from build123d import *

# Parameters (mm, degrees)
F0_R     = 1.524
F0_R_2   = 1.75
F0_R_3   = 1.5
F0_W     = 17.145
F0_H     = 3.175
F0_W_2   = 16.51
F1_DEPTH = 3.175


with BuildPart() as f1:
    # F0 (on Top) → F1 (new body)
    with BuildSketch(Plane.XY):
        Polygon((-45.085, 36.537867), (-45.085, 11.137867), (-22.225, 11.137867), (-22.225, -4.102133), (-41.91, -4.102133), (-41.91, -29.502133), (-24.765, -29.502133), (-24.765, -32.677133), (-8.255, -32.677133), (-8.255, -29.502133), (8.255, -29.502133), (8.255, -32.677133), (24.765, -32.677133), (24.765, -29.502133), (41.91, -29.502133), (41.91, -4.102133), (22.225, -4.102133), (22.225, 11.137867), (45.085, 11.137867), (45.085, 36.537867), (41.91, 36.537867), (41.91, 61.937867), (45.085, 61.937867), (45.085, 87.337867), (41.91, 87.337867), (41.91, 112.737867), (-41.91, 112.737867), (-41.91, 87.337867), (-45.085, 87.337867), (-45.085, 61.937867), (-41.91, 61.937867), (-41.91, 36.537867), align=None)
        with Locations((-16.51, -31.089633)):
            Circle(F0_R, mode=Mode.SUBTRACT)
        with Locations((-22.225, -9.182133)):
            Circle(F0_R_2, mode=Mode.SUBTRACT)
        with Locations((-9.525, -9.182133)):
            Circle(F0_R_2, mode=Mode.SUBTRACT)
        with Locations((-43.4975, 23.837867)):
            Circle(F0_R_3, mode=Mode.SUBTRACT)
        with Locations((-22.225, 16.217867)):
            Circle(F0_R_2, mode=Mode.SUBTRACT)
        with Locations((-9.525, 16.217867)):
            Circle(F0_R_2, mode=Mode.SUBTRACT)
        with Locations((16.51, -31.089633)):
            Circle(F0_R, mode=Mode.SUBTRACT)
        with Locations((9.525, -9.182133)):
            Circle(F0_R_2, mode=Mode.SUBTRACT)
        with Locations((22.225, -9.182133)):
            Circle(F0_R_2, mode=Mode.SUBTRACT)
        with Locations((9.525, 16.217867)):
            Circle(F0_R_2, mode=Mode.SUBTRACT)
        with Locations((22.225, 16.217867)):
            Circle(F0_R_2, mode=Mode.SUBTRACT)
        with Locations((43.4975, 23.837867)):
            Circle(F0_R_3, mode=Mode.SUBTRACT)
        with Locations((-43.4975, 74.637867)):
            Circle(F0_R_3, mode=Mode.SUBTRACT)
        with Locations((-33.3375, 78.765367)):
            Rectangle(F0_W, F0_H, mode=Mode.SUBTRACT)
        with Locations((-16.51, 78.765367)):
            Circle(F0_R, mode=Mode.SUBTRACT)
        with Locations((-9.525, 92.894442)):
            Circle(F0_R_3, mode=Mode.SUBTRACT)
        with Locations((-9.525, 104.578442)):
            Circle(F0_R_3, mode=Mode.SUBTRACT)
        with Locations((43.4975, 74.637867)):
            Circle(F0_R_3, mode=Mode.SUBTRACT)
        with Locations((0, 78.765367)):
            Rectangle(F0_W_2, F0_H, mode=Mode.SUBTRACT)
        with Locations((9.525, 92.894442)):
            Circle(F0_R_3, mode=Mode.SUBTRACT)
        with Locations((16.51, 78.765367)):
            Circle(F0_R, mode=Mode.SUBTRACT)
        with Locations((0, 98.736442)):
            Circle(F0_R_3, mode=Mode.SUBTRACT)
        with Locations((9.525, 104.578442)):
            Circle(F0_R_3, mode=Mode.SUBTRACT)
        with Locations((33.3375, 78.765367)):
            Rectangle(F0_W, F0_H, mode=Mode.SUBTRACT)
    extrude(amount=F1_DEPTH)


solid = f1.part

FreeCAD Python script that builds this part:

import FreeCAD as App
import Part
import Sketcher
from FreeCAD import Vector
Q = App.Units.Quantity


def add_polygon(sketch, points):
    """Adds a closed chain of lines whose ends are joined by coincident constraints."""
    first, n = sketch.GeometryCount, len(points)
    for a, b in zip(points, points[1:] + points[:1]):
        sketch.addGeometry(Part.LineSegment(App.Vector(*a, 0), App.Vector(*b, 0)), False)
    for i in range(n):
        sketch.addConstraint(Sketcher.Constraint("Coincident", first + i, 2, first + (i + 1) % n, 1))

doc = App.newDocument("Part")
body = doc.addObject("PartDesign::Body", "Body")

# Sketch on XY plane
sketch1 = doc.addObject("Sketcher::SketchObject", "Sketch")
body.addObject(sketch1)
sketch1.AttachmentSupport = (doc.XY_Plane, [""])
sketch1.MapMode = "FlatFace"
add_polygon(sketch1, [(-45.085, 36.537867), (-45.085, 11.137867), (-22.225, 11.137867), (-22.225, -4.102133), (-41.91, -4.102133), (-41.91, -29.502133), (-24.765, -29.502133), (-24.765, -32.677133), (-8.255, -32.677133), (-8.255, -29.502133), (8.255, -29.502133), (8.255, -32.677133), (24.765, -32.677133), (24.765, -29.502133), (41.91, -29.502133), (41.91, -4.102133), (22.225, -4.102133), (22.225, 11.137867), (45.085, 11.137867), (45.085, 36.537867), (41.91, 36.537867), (41.91, 61.937867), (45.085, 61.937867), (45.085, 87.337867), (41.91, 87.337867), (41.91, 112.737867), (-41.91, 112.737867), (-41.91, 87.337867), (-45.085, 87.337867), (-45.085, 61.937867), (-41.91, 61.937867), (-41.91, 36.537867)])  # lines 0-31
sketch1.addGeometry(Part.Circle(Vector(-16.51, -31.089633, 0), Vector(0, 0, 1), 1.524), False)  # 32
sketch1.addGeometry(Part.Circle(Vector(-22.225, -9.182133, 0), Vector(0, 0, 1), 1.75), False)  # 33
sketch1.addGeometry(Part.Circle(Vector(-9.525, -9.182133, 0), Vector(0, 0, 1), 1.75), False)  # 34
sketch1.addGeometry(Part.Circle(Vector(-43.4975, 23.837867, 0), Vector(0, 0, 1), 1.5), False)  # 35
sketch1.addGeometry(Part.Circle(Vector(-22.225, 16.217867, 0), Vector(0, 0, 1), 1.75), False)  # 36
sketch1.addGeometry(Part.Circle(Vector(-9.525, 16.217867, 0), Vector(0, 0, 1), 1.75), False)  # 37
sketch1.addGeometry(Part.Circle(Vector(16.51, -31.089633, 0), Vector(0, 0, 1), 1.524), False)  # 38
sketch1.addGeometry(Part.Circle(Vector(9.525, -9.182133, 0), Vector(0, 0, 1), 1.75), False)  # 39
sketch1.addGeometry(Part.Circle(Vector(22.225, -9.182133, 0), Vector(0, 0, 1), 1.75), False)  # 40
sketch1.addGeometry(Part.Circle(Vector(9.525, 16.217867, 0), Vector(0, 0, 1), 1.75), False)  # 41
sketch1.addGeometry(Part.Circle(Vector(22.225, 16.217867, 0), Vector(0, 0, 1), 1.75), False)  # 42
sketch1.addGeometry(Part.Circle(Vector(43.4975, 23.837867, 0), Vector(0, 0, 1), 1.5), False)  # 43
sketch1.addGeometry(Part.Circle(Vector(-43.4975, 74.637867, 0), Vector(0, 0, 1), 1.5), False)  # 44
add_polygon(sketch1, [(-24.765, 77.177867), (-41.91, 77.177867), (-41.91, 80.352867), (-24.765, 80.352867)])  # lines 45-48
sketch1.addGeometry(Part.Circle(Vector(-16.51, 78.765367, 0), Vector(0, 0, 1), 1.524), False)  # 49
sketch1.addGeometry(Part.Circle(Vector(-9.525, 92.894442, 0), Vector(0, 0, 1), 1.5), False)  # 50
sketch1.addGeometry(Part.Circle(Vector(-9.525, 104.578442, 0), Vector(0, 0, 1), 1.5), False)  # 51
add_polygon(sketch1, [(8.255, 77.177867), (-8.255, 77.177867), (-8.255, 80.352867), (8.255, 80.352867)])  # lines 52-55
sketch1.addGeometry(Part.Circle(Vector(16.51, 78.765367, 0), Vector(0, 0, 1), 1.524), False)  # 56
sketch1.addGeometry(Part.Circle(Vector(9.525, 92.894442, 0), Vector(0, 0, 1), 1.5), False)  # 57
sketch1.addGeometry(Part.Circle(Vector(0, 98.736442, 0), Vector(0, 0, 1), 1.5), False)  # 58
sketch1.addGeometry(Part.Circle(Vector(9.525, 104.578442, 0), Vector(0, 0, 1), 1.5), False)  # 59
add_polygon(sketch1, [(41.91, 77.177867), (24.765, 77.177867), (24.765, 80.352867), (41.91, 80.352867)])  # lines 60-63
sketch1.addGeometry(Part.Circle(Vector(43.4975, 74.637867, 0), Vector(0, 0, 1), 1.5), False)  # 64
sketch1.addConstraint([
    Sketcher.Constraint("Vertical", 0),
    Sketcher.Constraint("Horizontal", 1),
    Sketcher.Constraint("Vertical", 2),
    Sketcher.Constraint("Horizontal", 3),
    Sketcher.Constraint("Vertical", 4),
    Sketcher.Constraint("Horizontal", 5),
    Sketcher.Constraint("Vertical", 6),
    Sketcher.Constraint("Horizontal", 7),
    Sketcher.Constraint("Vertical", 8),
    Sketcher.Constraint("Horizontal", 9),
    Sketcher.Constraint("Vertical", 10),
    Sketcher.Constraint("Horizontal", 11),
    Sketcher.Constraint("Vertical", 12),
    Sketcher.Constraint("Horizontal", 13),
    Sketcher.Constraint("Vertical", 14),
    Sketcher.Constraint("Horizontal", 15),
    Sketcher.Constraint("Vertical", 16),
    Sketcher.Constraint("Horizontal", 17),
    Sketcher.Constraint("Vertical", 18),
    Sketcher.Constraint("Horizontal", 19),
    Sketcher.Constraint("Vertical", 20),
    Sketcher.Constraint("Horizontal", 21),
    Sketcher.Constraint("Vertical", 22),
    Sketcher.Constraint("Horizontal", 23),
    Sketcher.Constraint("Vertical", 24),
    Sketcher.Constraint("Horizontal", 25),
    Sketcher.Constraint("Vertical", 26),
    Sketcher.Constraint("Horizontal", 27),
    Sketcher.Constraint("Vertical", 28),
    Sketcher.Constraint("Horizontal", 29),
    Sketcher.Constraint("Vertical", 30),
    Sketcher.Constraint("Horizontal", 31),
    Sketcher.Constraint("Horizontal", 45),
    Sketcher.Constraint("Vertical", 46),
    Sketcher.Constraint("Horizontal", 47),
    Sketcher.Constraint("Vertical", 48),
    Sketcher.Constraint("Horizontal", 52),
    Sketcher.Constraint("Vertical", 53),
    Sketcher.Constraint("Horizontal", 54),
    Sketcher.Constraint("Vertical", 55),
    Sketcher.Constraint("Horizontal", 60),
    Sketcher.Constraint("Vertical", 61),
    Sketcher.Constraint("Horizontal", 62),
    Sketcher.Constraint("Vertical", 63),
    Sketcher.Constraint("Equal", 33, 34),
    Sketcher.Constraint("Equal", 34, 36),
    Sketcher.Constraint("Equal", 36, 37),
    Sketcher.Constraint("Equal", 32, 38),
    Sketcher.Constraint("Equal", 37, 39),
    Sketcher.Constraint("Equal", 39, 40),
    Sketcher.Constraint("Equal", 40, 41),
    Sketcher.Constraint("Equal", 41, 42),
    Sketcher.Constraint("Equal", 35, 43),
    Sketcher.Constraint("Equal", 43, 44),
    Sketcher.Constraint("Equal", 38, 49),
    Sketcher.Constraint("Equal", 44, 50),
    Sketcher.Constraint("Equal", 50, 51),
    Sketcher.Constraint("Equal", 49, 56),
    Sketcher.Constraint("Equal", 51, 57),
    Sketcher.Constraint("Equal", 57, 58),
    Sketcher.Constraint("Equal", 58, 59),
    Sketcher.Constraint("Equal", 59, 64),
    Sketcher.Constraint("Symmetric", 32, 3, 38, 3, -2),
    Sketcher.Constraint("Symmetric", 34, 3, 39, 3, -2),
    Sketcher.Constraint("Symmetric", 33, 3, 40, 3, -2),
    Sketcher.Constraint("Symmetric", 37, 3, 41, 3, -2),
    Sketcher.Constraint("Symmetric", 36, 3, 42, 3, -2),
    Sketcher.Constraint("Symmetric", 35, 3, 43, 3, -2),
    Sketcher.Constraint("Symmetric", 49, 3, 56, 3, -2),
    Sketcher.Constraint("Symmetric", 50, 3, 57, 3, -2),
    Sketcher.Constraint("Symmetric", 51, 3, 59, 3, -2),
    Sketcher.Constraint("Symmetric", 44, 3, 64, 3, -2),
    Sketcher.Constraint("Symmetric", 7, 2, 10, 2, -2),
    Sketcher.Constraint("Symmetric", 5, 2, 12, 2, -2),
    Sketcher.Constraint("Symmetric", 3, 2, 14, 2, -2),
    Sketcher.Constraint("Symmetric", 1, 2, 16, 2, -2),
    Sketcher.Constraint("Symmetric", 23, 2, 26, 2, -2),
    Sketcher.Constraint("Symmetric", 21, 2, 28, 2, -2),
    Sketcher.Constraint("Symmetric", 19, 2, 30, 2, -2),
    Sketcher.Constraint("Symmetric", 48, 2, 60, 2, -2),
    Sketcher.Constraint("Symmetric", 46, 2, 62, 2, -2),
    Sketcher.Constraint("PointOnObject", 58, 3, -2),
    Sketcher.Constraint("Horizontal", 33, 3, 34, 3),
    Sketcher.Constraint("Horizontal", 36, 3, 37, 3),
    Sketcher.Constraint("Horizontal", 5, 2, 8, 2),
    Sketcher.Constraint("Horizontal", 48, 2, 52, 2),
    Sketcher.Constraint("Horizontal", 47, 2, 53, 2),
    Sketcher.Constraint("Vertical", 33, 3, 36, 3),
    Sketcher.Constraint("Vertical", 34, 3, 37, 3),
    Sketcher.Constraint("Vertical", 35, 3, 44, 3),
    Sketcher.Constraint("Vertical", 32, 3, 49, 3),
    Sketcher.Constraint("Vertical", 37, 3, 50, 3),
    Sketcher.Constraint("Vertical", 50, 3, 51, 3),
    Sketcher.Constraint("Vertical", 36, 3, 1, 2),
    Sketcher.Constraint("Vertical", 14, 2, 19, 2),
    Sketcher.Constraint("Vertical", 18, 2, 21, 2),
    Sketcher.Constraint("Vertical", 20, 2, 23, 2),
    Sketcher.Constraint("Vertical", 0, 2, 27, 2),
    Sketcher.Constraint("Vertical", 30, 2, 45, 2),
    Sketcher.Constraint("Vertical", 6, 2, 47, 2),
    Sketcher.Constraint("Vertical", 8, 2, 52, 2),
    Sketcher.Constraint("Vertical", 10, 2, 54, 2),
    Sketcher.Constraint("Equal", 7, 9),
    Sketcher.Constraint("Equal", 0, 4),
    Sketcher.Constraint("Equal", 31, 6),
    Sketcher.Constraint("Equal", 18, 20),
    Sketcher.Constraint("Equal", 20, 22),
    Sketcher.Constraint("Equal", 22, 24),
    Sketcher.Constraint("Equal", 12, 46),
    Sketcher.Constraint("Diameter", 32, Q("0.12 in")),
    Sketcher.Constraint("DistanceY", 0, 2, 0, 1, Q("1 in")),
    Sketcher.Constraint("DistanceX", 1, 1, 1, 2, Q("0.9 in")),
    Sketcher.Constraint("DistanceX", 25, 2, 25, 1, Q("3.3 in")),
    Sketcher.Constraint("DistanceY", 2, 2, 2, 1, Q("0.6 in")),
    Sketcher.Constraint("DistanceX", 7, 1, 7, 2, Q("0.65 in")),
    Sketcher.Constraint("Diameter", 33, Q("3.5 mm")),
    Sketcher.Constraint("Diameter", 35, Q("3 mm")),
    Sketcher.Constraint("DistanceX", 3, 2, 3, 1, Q("0.775 in")),
    Sketcher.Constraint("DistanceX", 32, 3, -1, 1, Q("0.65 in")),
    Sketcher.Constraint("DistanceX", 34, 3, -1, 1, Q("0.375 in")),
    Sketcher.Constraint("DistanceX", 35, 3, -1, 1, Q("1.7125 in")),
    Sketcher.Constraint("DistanceY", -1, 1, 50, 3, Q("92.894442 mm")),
    Sketcher.Constraint("DistanceY", -1, 1, 51, 3, Q("104.578442 mm")),
    Sketcher.Constraint("DistanceY", -1, 1, 58, 3, Q("98.736442 mm")),
    Sketcher.Constraint("DistanceY", 32, 3, -1, 1, Q("31.089633 mm")),
    Sketcher.Constraint("DistanceY", 33, 3, -1, 1, Q("9.182133 mm")),
    Sketcher.Constraint("DistanceY", -1, 1, 35, 3, Q("23.837867 mm")),
    Sketcher.Constraint("DistanceY", -1, 1, 36, 3, Q("16.217867 mm")),
    Sketcher.Constraint("DistanceY", -1, 1, 44, 3, Q("74.637867 mm")),
    Sketcher.Constraint("DistanceY", -1, 1, 49, 3, Q("78.765367 mm")),
    Sketcher.Constraint("DistanceY", -1, 1, 0, 2, Q("11.137867 mm")),
    Sketcher.Constraint("DistanceY", -1, 1, 45, 2, Q("77.177867 mm")),
])
pad1 = doc.addObject("PartDesign::Pad", "Pad")
body.addObject(pad1)
pad1.Profile = sketch1
pad1.Length = Q("0.125 in")

doc.recompute()
